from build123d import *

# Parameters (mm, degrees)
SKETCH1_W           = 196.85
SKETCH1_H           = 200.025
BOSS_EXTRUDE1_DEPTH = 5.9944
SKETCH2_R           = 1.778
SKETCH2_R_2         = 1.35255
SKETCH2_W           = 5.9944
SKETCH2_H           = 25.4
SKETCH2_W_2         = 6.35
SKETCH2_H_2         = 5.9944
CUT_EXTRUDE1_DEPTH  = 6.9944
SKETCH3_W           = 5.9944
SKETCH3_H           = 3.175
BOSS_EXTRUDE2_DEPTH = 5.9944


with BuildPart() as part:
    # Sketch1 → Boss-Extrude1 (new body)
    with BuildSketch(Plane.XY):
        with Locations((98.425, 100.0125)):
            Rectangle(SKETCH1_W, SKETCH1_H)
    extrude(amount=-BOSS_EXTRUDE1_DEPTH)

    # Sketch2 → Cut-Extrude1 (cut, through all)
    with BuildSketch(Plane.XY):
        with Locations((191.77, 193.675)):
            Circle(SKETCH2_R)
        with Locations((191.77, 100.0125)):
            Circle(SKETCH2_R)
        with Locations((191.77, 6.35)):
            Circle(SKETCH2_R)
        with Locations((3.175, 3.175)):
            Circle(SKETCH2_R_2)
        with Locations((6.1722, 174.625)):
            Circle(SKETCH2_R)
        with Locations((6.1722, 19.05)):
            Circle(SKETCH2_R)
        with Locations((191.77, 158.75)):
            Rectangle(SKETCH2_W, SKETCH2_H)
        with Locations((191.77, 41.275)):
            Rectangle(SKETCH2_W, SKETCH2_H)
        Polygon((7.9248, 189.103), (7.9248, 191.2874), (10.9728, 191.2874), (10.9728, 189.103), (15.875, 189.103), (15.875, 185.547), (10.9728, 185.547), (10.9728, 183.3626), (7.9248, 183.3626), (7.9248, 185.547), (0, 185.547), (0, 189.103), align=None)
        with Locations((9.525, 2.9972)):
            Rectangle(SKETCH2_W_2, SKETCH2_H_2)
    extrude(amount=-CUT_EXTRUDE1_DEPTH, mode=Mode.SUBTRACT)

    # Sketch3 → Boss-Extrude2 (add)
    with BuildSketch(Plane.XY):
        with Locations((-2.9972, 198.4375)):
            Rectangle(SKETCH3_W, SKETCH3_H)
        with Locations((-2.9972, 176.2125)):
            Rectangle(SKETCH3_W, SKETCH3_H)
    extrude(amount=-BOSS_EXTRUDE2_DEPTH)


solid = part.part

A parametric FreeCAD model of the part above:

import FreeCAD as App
import Part
import Sketcher
from FreeCAD import Vector
Q = App.Units.Quantity

doc = App.newDocument("Part")
params = doc.addObject("Spreadsheet::Sheet", "Params")
for row, (alias, value) in enumerate([
    ("sketch1_width", "7.75 in"),
    ("sketch1_height", "7.875 in"),
    ("pad1_length", "0.236 in"),
    ("sketch2_diameter", "0.14 in"),
    ("sketch2_height", "1 in"),
    ("sketch2_width", "0.12 in"),
    ("sketch2_width2", "0.25 in"),
    ("sketch2_height2", "0.14 in"),
    ("sketch3_width", "0.236 in"),
    ("sketch3_height", "0.125 in"),
    ("pad2_length", "0.236 in"),
], start=1):
    params.set(f"A{row}", alias)
    params.set(f"B{row}", "=" + value)
    params.setAlias(f"B{row}", alias)

body = doc.addObject("PartDesign::Body", "Body")

# Sketch on XY plane
sketch1 = doc.addObject("Sketcher::SketchObject", "Sketch")
body.addObject(sketch1)
sketch1.AttachmentSupport = (doc.XY_Plane, [""])
sketch1.MapMode = "FlatFace"
sketch1.addGeometry(Part.LineSegment(Vector(0, 200.025, 0), Vector(0, 0, 0)), False)
sketch1.addGeometry(Part.LineSegment(Vector(0, 0, 0), Vector(196.85, 0, 0)), False)
sketch1.addGeometry(Part.LineSegment(Vector(196.85, 0, 0), Vector(196.85, 200.025, 0)), False)
sketch1.addGeometry(Part.LineSegment(Vector(196.85, 200.025, 0), Vector(0, 200.025, 0)), False)
sketch1.addConstraint(Sketcher.Constraint("Coincident", 0, 2, 1, 1))
sketch1.addConstraint(Sketcher.Constraint("Coincident", 1, 2, 2, 1))
sketch1.addConstraint(Sketcher.Constraint("Coincident", 2, 2, 3, 1))
sketch1.addConstraint(Sketcher.Constraint("Coincident", 3, 2, 0, 1))
sketch1.addConstraint(Sketcher.Constraint("Vertical", 0))
sketch1.addConstraint(Sketcher.Constraint("Horizontal", 1))
sketch1.addConstraint(Sketcher.Constraint("Vertical", 2))
sketch1.addConstraint(Sketcher.Constraint("Horizontal", 3))
sketch1.addConstraint(Sketcher.Constraint("Coincident", 0, 2, -1, 1))
sketch1.addConstraint(Sketcher.Constraint("DistanceX", 1, 1, 1, 2, Q("7.75 in")))
sketch1.addConstraint(Sketcher.Constraint("DistanceY", 0, 2, 0, 1, Q("7.875 in")))
sketch1.setExpression("Constraints[9]", "Params.sketch1_width")
sketch1.setExpression("Constraints[10]", "Params.sketch1_height")
pad1 = doc.addObject("PartDesign::Pad", "Pad")
body.addObject(pad1)
pad1.Profile = sketch1
pad1.setExpression("Length", "Params.pad1_length")
pad1.Reversed = True

# Sketch on XY plane
sketch2 = doc.addObject("Sketcher::SketchObject", "Sketch001")
body.addObject(sketch2)
sketch2.AttachmentSupport = (doc.XY_Plane, [""])
sketch2.MapMode = "FlatFace"
sketch2.addGeometry(Part.Circle(Vector(191.77, 193.675, 0), Vector(0, 0, 1), 1.778), False)
sketch2.addGeometry(Part.Circle(Vector(191.77, 100.0125, 0), Vector(0, 0, 1), 1.778), False)
sketch2.addGeometry(Part.Circle(Vector(191.77, 6.35, 0), Vector(0, 0, 1), 1.778), False)
sketch2.addGeometry(Part.Circle(Vector(3.175, 3.175, 0), Vector(0, 0, 1), 1.35255), False)
sketch2.addGeometry(Part.Circle(Vector(6.1722, 174.625, 0), Vector(0, 0, 1), 1.778), False)
sketch2.addGeometry(Part.Circle(Vector(6.1722, 19.05, 0), Vector(0, 0, 1), 1.778), False)
sketch2.addGeometry(Part.LineSegment(Vector(188.7728, 171.45, 0), Vector(188.7728, 146.05, 0)), False)
sketch2.addGeometry(Part.LineSegment(Vector(188.7728, 146.05, 0), Vector(194.7672, 146.05, 0)), False)
sketch2.addGeometry(Part.LineSegment(Vector(194.7672, 146.05, 0), Vector(194.7672, 171.45, 0)), False)
sketch2.addGeometry(Part.LineSegment(Vector(194.7672, 171.45, 0), Vector(188.7728, 171.45, 0)), False)
sketch2.addGeometry(Part.LineSegment(Vector(188.7728, 53.975, 0), Vector(188.7728, 28.575, 0)), False)
sketch2.addGeometry(Part.LineSegment(Vector(188.7728, 28.575, 0), Vector(194.7672, 28.575, 0)), False)
sketch2.addGeometry(Part.LineSegment(Vector(194.7672, 28.575, 0), Vector(194.7672, 53.975, 0)), False)
sketch2.addGeometry(Part.LineSegment(Vector(194.7672, 53.975, 0), Vector(188.7728, 53.975, 0)), False)
sketch2.addGeometry(Part.LineSegment(Vector(7.9248, 191.2874, 0), Vector(7.9248, 189.103, 0)), False)
sketch2.addGeometry(Part.LineSegment(Vector(7.9248, 189.103, 0), Vector(0, 189.103, 0)), False)
sketch2.addGeometry(Part.LineSegment(Vector(0, 189.103, 0), Vector(0, 185.547, 0)), False)
sketch2.addGeometry(Part.LineSegment(Vector(0, 185.547, 0), Vector(7.9248, 185.547, 0)), False)
sketch2.addGeometry(Part.LineSegment(Vector(7.9248, 185.547, 0), Vector(7.9248, 183.3626, 0)), False)
sketch2.addGeometry(Part.LineSegment(Vector(7.9248, 183.3626, 0), Vector(10.9728, 183.3626, 0)), False)
sketch2.addGeometry(Part.LineSegment(Vector(10.9728, 183.3626, 0), Vector(10.9728, 185.547, 0)), False)
sketch2.addGeometry(Part.LineSegment(Vector(10.9728, 185.547, 0), Vector(15.875, 185.547, 0)), False)
sketch2.addGeometry(Part.LineSegment(Vector(15.875, 185.547, 0), Vector(15.875, 189.103, 0)), False)
sketch2.addGeometry(Part.LineSegment(Vector(15.875, 189.103, 0), Vector(10.9728, 189.103, 0)), False)
sketch2.addGeometry(Part.LineSegment(Vector(10.9728, 189.103, 0), Vector(10.9728, 191.2874, 0)), False)
sketch2.addGeometry(Part.LineSegment(Vector(10.9728, 191.2874, 0), Vector(7.9248, 191.2874, 0)), False)
sketch2.addGeometry(Part.LineSegment(Vector(6.35, 5.9944, 0), Vector(6.35, 0, 0)), False)
sketch2.addGeometry(Part.LineSegment(Vector(6.35, 0, 0), Vector(12.7, 0, 0)), False)
sketch2.addGeometry(Part.LineSegment(Vector(12.7, 0, 0), Vector(12.7, 5.9944, 0)), False)
sketch2.addGeometry(Part.LineSegment(Vector(12.7, 5.9944, 0), Vector(6.35, 5.9944, 0)), False)
sketch2.addConstraint(Sketcher.Constraint("Coincident", 6, 2, 7, 1))
sketch2.addConstraint(Sketcher.Constraint("Coincident", 7, 2, 8, 1))
sketch2.addConstraint(Sketcher.Constraint("Coincident", 8, 2, 9, 1))
sketch2.addConstraint(Sketcher.Constraint("Coincident", 9, 2, 6, 1))
sketch2.addConstraint(Sketcher.Constraint("Coincident", 10, 2, 11, 1))
sketch2.addConstraint(Sketcher.Constraint("Coincident", 11, 2, 12, 1))
sketch2.addConstraint(Sketcher.Constraint("Coincident", 12, 2, 13, 1))
sketch2.addConstraint(Sketcher.Constraint("Coincident", 13, 2, 10, 1))
sketch2.addConstraint(Sketcher.Constraint("Coincident", 14, 2, 15, 1))
sketch2.addConstraint(Sketcher.Constraint("Coincident", 15, 2, 16, 1))
sketch2.addConstraint(Sketcher.Constraint("Coincident", 16, 2, 17, 1))
sketch2.addConstraint(Sketcher.Constraint("Coincident", 17, 2, 18, 1))
sketch2.addConstraint(Sketcher.Constraint("Coincident", 18, 2, 19, 1))
sketch2.addConstraint(Sketcher.Constraint("Coincident", 19, 2, 20, 1))
sketch2.addConstraint(Sketcher.Constraint("Coincident", 20, 2, 21, 1))
sketch2.addConstraint(Sketcher.Constraint("Coincident", 21, 2, 22, 1))
sketch2.addConstraint(Sketcher.Constraint("Coincident", 22, 2, 23, 1))
sketch2.addConstraint(Sketcher.Constraint("Coincident", 23, 2, 24, 1))
sketch2.addConstraint(Sketcher.Constraint("Coincident", 24, 2, 25, 1))
sketch2.addConstraint(Sketcher.Constraint("Coincident", 25, 2, 14, 1))
sketch2.addConstraint(Sketcher.Constraint("Coincident", 26, 2, 27, 1))
sketch2.addConstraint(Sketcher.Constraint("Coincident", 27, 2, 28, 1))
sketch2.addConstraint(Sketcher.Constraint("Coincident", 28, 2, 29, 1))
sketch2.addConstraint(Sketcher.Constraint("Coincident", 29, 2, 26, 1))
sketch2.addConstraint(Sketcher.Constraint("Vertical", 6))
sketch2.addConstraint(Sketcher.Constraint("Horizontal", 7))
sketch2.addConstraint(Sketcher.Constraint("Vertical", 8))
sketch2.addConstraint(Sketcher.Constraint("Horizontal", 9))
sketch2.addConstraint(Sketcher.Constraint("Vertical", 10))
sketch2.addConstraint(Sketcher.Constraint("Horizontal", 11))
sketch2.addConstraint(Sketcher.Constraint("Vertical", 12))
sketch2.addConstraint(Sketcher.Constraint("Horizontal", 13))
sketch2.addConstraint(Sketcher.Constraint("Vertical", 14))
sketch2.addConstraint(Sketcher.Constraint("Horizontal", 15))
sketch2.addConstraint(Sketcher.Constraint("Vertical", 16))
sketch2.addConstraint(Sketcher.Constraint("Horizontal", 17))
sketch2.addConstraint(Sketcher.Constraint("Vertical", 18))
sketch2.addConstraint(Sketcher.Constraint("Horizontal", 19))
sketch2.addConstraint(Sketcher.Constraint("Vertical", 20))
sketch2.addConstraint(Sketcher.Constraint("Horizontal", 21))
sketch2.addConstraint(Sketcher.Constraint("Vertical", 22))
sketch2.addConstraint(Sketcher.Constraint("Horizontal", 23))
sketch2.addConstraint(Sketcher.Constraint("Vertical", 24))
sketch2.addConstraint(Sketcher.Constraint("Horizontal", 25))
sketch2.addConstraint(Sketcher.Constraint("Vertical", 26))
sketch2.addConstraint(Sketcher.Constraint("Horizontal", 27))
sketch2.addConstraint(Sketcher.Constraint("Vertical", 28))
sketch2.addConstraint(Sketcher.Constraint("Horizontal", 29))
sketch2.addConstraint(Sketcher.Constraint("Equal", 0, 1))
sketch2.addConstraint(Sketcher.Constraint("Equal", 1, 2))
sketch2.addConstraint(Sketcher.Constraint("Equal", 2, 4))
sketch2.addConstraint(Sketcher.Constraint("Equal", 4, 5))
sketch2.addConstraint(Sketcher.Constraint("PointOnObject", 15, 2, -2))
sketch2.addConstraint(Sketcher.Constraint("PointOnObject", 26, 2, -1))
sketch2.addConstraint(Sketcher.Constraint("Horizontal", 17, 2, 20, 2))
sketch2.addConstraint(Sketcher.Constraint("Horizontal", 15, 2, 22, 2))
sketch2.addConstraint(Sketcher.Constraint("Vertical", 0, 3, 1, 3))
sketch2.addConstraint(Sketcher.Constraint("Vertical", 1, 3, 2, 3))
sketch2.addConstraint(Sketcher.Constraint("Vertical", 4, 3, 5, 3))
sketch2.addConstraint(Sketcher.Constraint("Vertical", 9, 2, 10, 2))
sketch2.addConstraint(Sketcher.Constraint("Vertical", 8, 2, 11, 2))
sketch2.addConstraint(Sketcher.Constraint("Vertical", 14, 2, 17, 2))
sketch2.addConstraint(Sketcher.Constraint("Vertical", 20, 2, 23, 2))
sketch2.addConstraint(Sketcher.Constraint("Equal", 8, 10))
sketch2.addConstraint(Sketcher.Constraint("Equal", 14, 18))
sketch2.addConstraint(Sketcher.Constraint("Equal", 13, 26))
sketch2.addConstraint(Sketcher.Constraint("Diameter", 0, Q("0.14 in")))
sketch2.addConstraint(Sketcher.Constraint("DistanceY", 6, 2, 6, 1, Q("1 in")))
sketch2.addConstraint(Sketcher.Constraint("DistanceY", 5, 3, 6, 2, Q("5 in")))
sketch2.addConstraint(Sketcher.Constraint("Diameter", 3, Q("0.1065 in")))
sketch2.addConstraint(Sketcher.Constraint("DistanceX", 19, 1, 19, 2, Q("0.12 in")))
sketch2.addConstraint(Sketcher.Constraint("DistanceX", 27, 1, 27, 2, Q("0.25 in")))
sketch2.addConstraint(Sketcher.Constraint("DistanceY", 16, 2, 16, 1, Q("0.14 in")))
sketch2.addConstraint(Sketcher.Constraint("DistanceX", -1, 1, 27, 2, Q("0.5 in")))
sketch2.addConstraint(Sketcher.Constraint("DistanceY", 3, 3, 0, 3, Q("7.5 in")))
sketch2.addConstraint(Sketcher.Constraint("DistanceY", 2, 3, 5, 3, Q("0.5 in")))
sketch2.addConstraint(Sketcher.Constraint("DistanceX", 7, 1, 7, 2, Q("0.236 in")))
sketch2.addConstraint(Sketcher.Constraint("DistanceX", 15, 2, 15, 1, Q("0.312 in")))
sketch2.addConstraint(Sketcher.Constraint("DistanceX", 21, 1, 21, 2, Q("0.193 in")))
sketch2.addConstraint(Sketcher.Constraint("DistanceY", 14, 2, 14, 1, Q("0.086 in")))
sketch2.addConstraint(Sketcher.Constraint("DistanceX", -1, 1, 0, 3, Q("7.55 in")))
sketch2.addConstraint(Sketcher.Constraint("DistanceY", -1, 1, 2, 3, Q("0.25 in")))
sketch2.addConstraint(Sketcher.Constraint("DistanceY", 3, 3, 4, 3, Q("6.75 in")))
sketch2.addConstraint(Sketcher.Constraint("DistanceY", 4, 3, 14, 2, Q("0.57 in")))
sketch2.addConstraint(Sketcher.Constraint("DistanceX", 14, 2, 9, 2, Q("7.12 in")))
sketch2.addConstraint(Sketcher.Constraint("DistanceY", -1, 1, 0, 3, Q("7.625 in")))
sketch2.addConstraint(Sketcher.Constraint("DistanceY", -1, 1, 1, 3, Q("3.9375 in")))
sketch2.addConstraint(Sketcher.Constraint("DistanceX", -1, 1, 3, 3, Q("0.125 in")))
sketch2.addConstraint(Sketcher.Constraint("DistanceX", -1, 1, 4, 3, Q("0.243 in")))
sketch2.addConstraint(Sketcher.Constraint("DistanceY", -1, 1, 10, 2, Q("1.125 in")))
sketch2.setExpression("Constraints[66]", "Params.sketch2_diameter")
sketch2.setExpression("Constraints[67]", "Params.sketch2_height")
sketch2.setExpression("Constraints[70]", "Params.sketch2_width")
sketch2.setExpression("Constraints[71]", "Params.sketch2_width2")
sketch2.setExpression("Constraints[72]", "Params.sketch2_height2")
pocket1 = doc.addObject("PartDesign::Pocket", "Pocket")
body.addObject(pocket1)
pocket1.Profile = sketch2
pocket1.Type = "ThroughAll"

# Sketch on XY plane
sketch3 = doc.addObject("Sketcher::SketchObject", "Sketch002")
body.addObject(sketch3)
sketch3.AttachmentSupport = (doc.XY_Plane, [""])
sketch3.MapMode = "FlatFace"
sketch3.addGeometry(Part.LineSegment(Vector(-5.9944, 200.025, 0), Vector(-5.9944, 196.85, 0)), False)
sketch3.addGeometry(Part.LineSegment(Vector(-5.9944, 196.85, 0), Vector(0, 196.85, 0)), False)
sketch3.addGeometry(Part.LineSegment(Vector(0, 196.85, 0), Vector(0, 200.025, 0)), False)
sketch3.addGeometry(Part.LineSegment(Vector(0, 200.025, 0), Vector(-5.9944, 200.025, 0)), False)
sketch3.addGeometry(Part.LineSegment(Vector(-5.9944, 177.8, 0), Vector(-5.9944, 174.625, 0)), False)
sketch3.addGeometry(Part.LineSegment(Vector(-5.9944, 174.625, 0), Vector(0, 174.625, 0)), False)
sketch3.addGeometry(Part.LineSegment(Vector(0, 174.625, 0), Vector(0, 177.8, 0)), False)
sketch3.addGeometry(Part.LineSegment(Vector(0, 177.8, 0), Vector(-5.9944, 177.8, 0)), False)
sketch3.addConstraint(Sketcher.Constraint("Coincident", 0, 2, 1, 1))
sketch3.addConstraint(Sketcher.Constraint("Coincident", 1, 2, 2, 1))
sketch3.addConstraint(Sketcher.Constraint("Coincident", 2, 2, 3, 1))
sketch3.addConstraint(Sketcher.Constraint("Coincident", 3, 2, 0, 1))
sketch3.addConstraint(Sketcher.Constraint("Coincident", 4, 2, 5, 1))
sketch3.addConstraint(Sketcher.Constraint("Coincident", 5, 2, 6, 1))
sketch3.addConstraint(Sketcher.Constraint("Coincident", 6, 2, 7, 1))
sketch3.addConstraint(Sketcher.Constraint("Coincident", 7, 2, 4, 1))
sketch3.addConstraint(Sketcher.Constraint("Vertical", 0))
sketch3.addConstraint(Sketcher.Constraint("Horizontal", 1))
sketch3.addConstraint(Sketcher.Constraint("Vertical", 2))
sketch3.addConstraint(Sketcher.Constraint("Horizontal", 3))
sketch3.addConstraint(Sketcher.Constraint("Vertical", 4))
sketch3.addConstraint(Sketcher.Constraint("Horizontal", 5))
sketch3.addConstraint(Sketcher.Constraint("Vertical", 6))
sketch3.addConstraint(Sketcher.Constraint("Horizontal", 7))
sketch3.addConstraint(Sketcher.Constraint("PointOnObject", 1, 2, -2))
sketch3.addConstraint(Sketcher.Constraint("PointOnObject", 5, 2, -2))
sketch3.addConstraint(Sketcher.Constraint("Vertical", 3, 2, 4, 2))
sketch3.addConstraint(Sketcher.Constraint("Equal", 2, 4))
sketch3.addConstraint(Sketcher.Constraint("DistanceY", -1, 1, 6, 2, Q("7 in")))
sketch3.addConstraint(Sketcher.Constraint("DistanceY", 4, 2, 3, 2, Q("1 in")))
sketch3.addConstraint(Sketcher.Constraint("DistanceX", 1, 1, 1, 2, Q("0.236 in")))
sketch3.addConstraint(Sketcher.Constraint("DistanceY", 0, 2, 0, 1, Q("0.125 in")))
sketch3.setExpression("Constraints[22]", "Params.sketch3_width")
sketch3.setExpression("Constraints[23]", "Params.sketch3_height")
pad2 = doc.addObject("PartDesign::Pad", "Pad001")
body.addObject(pad2)
pad2.Profile = sketch3
pad2.setExpression("Length", "Params.pad2_length")
pad2.Reversed = True

doc.recompute()
